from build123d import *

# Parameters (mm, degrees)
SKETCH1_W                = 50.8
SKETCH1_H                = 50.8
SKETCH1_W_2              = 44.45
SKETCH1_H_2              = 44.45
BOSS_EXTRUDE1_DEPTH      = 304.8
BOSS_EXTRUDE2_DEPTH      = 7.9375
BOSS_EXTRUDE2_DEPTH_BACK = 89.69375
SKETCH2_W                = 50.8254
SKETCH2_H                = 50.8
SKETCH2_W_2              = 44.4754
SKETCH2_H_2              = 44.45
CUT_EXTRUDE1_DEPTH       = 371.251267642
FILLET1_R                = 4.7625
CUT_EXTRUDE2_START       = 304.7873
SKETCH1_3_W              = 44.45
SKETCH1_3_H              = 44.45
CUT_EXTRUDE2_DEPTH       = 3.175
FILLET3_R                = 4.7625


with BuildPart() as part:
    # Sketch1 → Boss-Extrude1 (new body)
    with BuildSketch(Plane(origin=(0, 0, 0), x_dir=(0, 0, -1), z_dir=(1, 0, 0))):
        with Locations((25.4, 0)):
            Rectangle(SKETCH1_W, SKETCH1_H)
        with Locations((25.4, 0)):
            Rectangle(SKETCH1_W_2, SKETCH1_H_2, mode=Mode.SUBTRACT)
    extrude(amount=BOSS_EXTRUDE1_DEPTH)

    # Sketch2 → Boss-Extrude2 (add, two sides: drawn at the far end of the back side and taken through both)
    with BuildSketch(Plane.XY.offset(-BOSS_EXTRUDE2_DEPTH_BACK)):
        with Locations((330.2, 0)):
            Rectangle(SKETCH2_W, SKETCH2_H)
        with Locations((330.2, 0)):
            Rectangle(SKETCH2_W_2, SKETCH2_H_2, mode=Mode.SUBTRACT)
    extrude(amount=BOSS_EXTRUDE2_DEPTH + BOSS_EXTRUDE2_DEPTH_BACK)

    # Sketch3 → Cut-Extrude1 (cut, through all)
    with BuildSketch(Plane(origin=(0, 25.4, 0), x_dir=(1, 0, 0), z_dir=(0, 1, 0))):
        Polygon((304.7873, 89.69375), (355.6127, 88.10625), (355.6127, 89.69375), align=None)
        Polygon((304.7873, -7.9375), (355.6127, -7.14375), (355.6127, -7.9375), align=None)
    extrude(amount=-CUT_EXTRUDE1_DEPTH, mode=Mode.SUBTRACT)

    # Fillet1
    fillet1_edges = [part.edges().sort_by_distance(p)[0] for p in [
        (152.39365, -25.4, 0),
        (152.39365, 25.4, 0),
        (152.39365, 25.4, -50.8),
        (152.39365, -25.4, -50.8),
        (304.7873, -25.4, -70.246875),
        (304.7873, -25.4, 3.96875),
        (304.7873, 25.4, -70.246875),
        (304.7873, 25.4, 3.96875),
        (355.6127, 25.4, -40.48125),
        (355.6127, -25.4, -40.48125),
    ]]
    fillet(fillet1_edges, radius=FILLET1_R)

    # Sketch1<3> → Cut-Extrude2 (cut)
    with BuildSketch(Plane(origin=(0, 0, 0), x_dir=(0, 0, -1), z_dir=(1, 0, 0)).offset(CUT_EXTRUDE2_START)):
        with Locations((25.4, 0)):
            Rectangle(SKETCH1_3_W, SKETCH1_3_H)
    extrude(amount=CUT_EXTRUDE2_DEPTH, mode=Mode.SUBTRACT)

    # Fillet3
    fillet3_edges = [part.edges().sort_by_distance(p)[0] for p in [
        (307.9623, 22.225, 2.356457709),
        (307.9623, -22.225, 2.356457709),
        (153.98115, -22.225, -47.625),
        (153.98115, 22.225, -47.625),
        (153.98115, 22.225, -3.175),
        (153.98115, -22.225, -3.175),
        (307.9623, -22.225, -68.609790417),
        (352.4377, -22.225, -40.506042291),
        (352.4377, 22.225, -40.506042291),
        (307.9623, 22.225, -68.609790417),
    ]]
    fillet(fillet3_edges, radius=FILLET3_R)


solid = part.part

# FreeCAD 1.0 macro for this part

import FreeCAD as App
import Part
import Sketcher

V = App.Vector
Q = App.Units.Quantity


def edges_at(feature, points):
    """Names of the edges that pass closest to the given points."""
    edges = feature.Shape.Edges
    near = lambda p: min(range(len(edges)), key=lambda i: edges[i].distToShape(Part.Vertex(*p))[0])
    return sorted({f"Edge{near(p) + 1}" for p in points})

doc = App.newDocument("Part")
body = doc.addObject("PartDesign::Body", "Body")

# Sketch on YZ plane
sketch1 = body.newObject("Sketcher::SketchObject", "Sketch")
sketch1.AttachmentSupport = (doc.getObject("YZ_Plane"), [""])
sketch1.MapMode = "FlatFace"
sketch1.addGeometry([
    Part.LineSegment(V(25, 0, 0), V(-25, 0, 0)),  # 0
    Part.LineSegment(V(-25, 0, 0), V(-25, -51, 0)),  # 1
    Part.LineSegment(V(-25, -51, 0), V(25, -51, 0)),  # 2
    Part.LineSegment(V(25, -51, 0), V(25, 0, 0)),  # 3
    Part.LineSegment(V(-22, -48, 0), V(-22, -3, 0)),  # 4
    Part.LineSegment(V(-22, -3, 0), V(22, -3, 0)),  # 5
    Part.LineSegment(V(22, -3, 0), V(22, -48, 0)),  # 6
    Part.LineSegment(V(22, -48, 0), V(-22, -48, 0)),  # 7
], False)
sketch1.addConstraint([
    Sketcher.Constraint("Coincident", 0, 2, 1, 1),
    Sketcher.Constraint("Coincident", 1, 2, 2, 1),
    Sketcher.Constraint("Coincident", 2, 2, 3, 1),
    Sketcher.Constraint("Coincident", 3, 2, 0, 1),
    Sketcher.Constraint("Coincident", 4, 2, 5, 1),
    Sketcher.Constraint("Coincident", 5, 2, 6, 1),
    Sketcher.Constraint("Coincident", 6, 2, 7, 1),
    Sketcher.Constraint("Coincident", 7, 2, 4, 1),
    Sketcher.Constraint("Horizontal", 0),
    Sketcher.Constraint("Vertical", 1),
    Sketcher.Constraint("Horizontal", 2),
    Sketcher.Constraint("Vertical", 3),
    Sketcher.Constraint("Vertical", 4),
    Sketcher.Constraint("Horizontal", 5),
    Sketcher.Constraint("Vertical", 6),
    Sketcher.Constraint("Horizontal", 7),
    Sketcher.Constraint("Symmetric", 0, 2, 3, 2, -1, 1),
    Sketcher.Constraint("Equal", 2, 1),
    Sketcher.Constraint("Equal", 7, 4),
    Sketcher.Constraint("DistanceX", 0, 2, 0, 1, Q("2 in")),
    Sketcher.Constraint("DistanceX", 5, 1, 5, 2, Q("1.75 in")),
    Sketcher.Constraint("DistanceX", 4, 2, -1, 1, Q("0.875 in")),
    Sketcher.Constraint("DistanceY", 4, 2, -1, 1, Q("0.125 in")),
])
pad1 = body.newObject("PartDesign::Pad", "Pad")
pad1.Profile = sketch1
pad1.Length = Q("12 in")

# Sketch on XY plane
sketch2 = body.newObject("Sketcher::SketchObject", "Sketch001")
sketch2.AttachmentSupport = (doc.getObject("XY_Plane"), [""])
sketch2.MapMode = "FlatFace"
sketch2.addGeometry([
    Part.LineSegment(V(305, 25, 0), V(305, -25, 0)),  # 0
    Part.LineSegment(V(305, -25, 0), V(356, -25, 0)),  # 1
    Part.LineSegment(V(356, -25, 0), V(356, 25, 0)),  # 2
    Part.LineSegment(V(356, 25, 0), V(305, 25, 0)),  # 3
    Part.LineSegment(V(352, -22, 0), V(308, -22, 0)),  # 4
    Part.LineSegment(V(308, -22, 0), V(308, 22, 0)),  # 5
    Part.LineSegment(V(308, 22, 0), V(352, 22, 0)),  # 6
    Part.LineSegment(V(352, 22, 0), V(352, -22, 0)),  # 7
], False)
sketch2.addConstraint([
    Sketcher.Constraint("Coincident", 0, 2, 1, 1),
    Sketcher.Constraint("Coincident", 1, 2, 2, 1),
    Sketcher.Constraint("Coincident", 2, 2, 3, 1),
    Sketcher.Constraint("Coincident", 3, 2, 0, 1),
    Sketcher.Constraint("Coincident", 4, 2, 5, 1),
    Sketcher.Constraint("Coincident", 5, 2, 6, 1),
    Sketcher.Constraint("Coincident", 6, 2, 7, 1),
    Sketcher.Constraint("Coincident", 7, 2, 4, 1),
    Sketcher.Constraint("Vertical", 0),
    Sketcher.Constraint("Horizontal", 1),
    Sketcher.Constraint("Vertical", 2),
    Sketcher.Constraint("Horizontal", 3),
    Sketcher.Constraint("Horizontal", 4),
    Sketcher.Constraint("Vertical", 5),
    Sketcher.Constraint("Horizontal", 6),
    Sketcher.Constraint("Vertical", 7),
    Sketcher.Constraint("DistanceY", 0, 2, 0, 1, Q("2 in")),
    Sketcher.Constraint("DistanceY", 0, 2, -1, 1, Q("1 in")),
    Sketcher.Constraint("DistanceY", 5, 1, 5, 2, Q("1.75 in")),
    Sketcher.Constraint("DistanceX", 1, 1, 1, 2, Q("2.001 in")),
    Sketcher.Constraint("DistanceX", 4, 2, 4, 1, Q("1.751 in")),
    Sketcher.Constraint("DistanceY", 4, 2, -1, 1, Q("0.875 in")),
    Sketcher.Constraint("DistanceX", 0, 2, 4, 2, Q("0.125 in")),
    Sketcher.Constraint("DistanceX", -1, 1, 0, 2, Q("11.9995 in")),
])
pad2 = body.newObject("PartDesign::Pad", "Pad001")
pad2.Profile = sketch2
pad2.Type = "TwoLengths"
pad2.Length = Q("0.3125 in")
pad2.Length2 = Q("3.53125 in")

# Sketch on XZ plane
sketch3 = body.newObject("Sketcher::SketchObject", "Sketch002")
sketch3.AttachmentSupport = (doc.getObject("XZ_Plane"), [""])
sketch3.MapMode = "FlatFace"
sketch3.AttachmentOffset = App.Placement(V(0, 0, -1 * 25.4), App.Rotation())
sketch3.addGeometry([
    Part.LineSegment(V(304.8, -89.7, 0), V(355.6, -88.1, 0)),  # 0
    Part.LineSegment(V(355.6, -88.1, 0), V(355.6, -89.7, 0)),  # 1
    Part.LineSegment(V(355.6, -89.7, 0), V(304.8, -89.7, 0)),  # 2
    Part.LineSegment(V(355.6, 7.1, 0), V(304.8, 7.9, 0)),  # 3
    Part.LineSegment(V(304.8, 7.9, 0), V(355.6, 7.9, 0)),  # 4
    Part.LineSegment(V(355.6, 7.9, 0), V(355.6, 7.1, 0)),  # 5
], False)
sketch3.addConstraint([
    Sketcher.Constraint("Coincident", 0, 2, 1, 1),
    Sketcher.Constraint("Coincident", 1, 2, 2, 1),
    Sketcher.Constraint("Coincident", 2, 2, 0, 1),
    Sketcher.Constraint("Coincident", 3, 2, 4, 1),
    Sketcher.Constraint("Coincident", 4, 2, 5, 1),
    Sketcher.Constraint("Coincident", 5, 2, 3, 1),
    Sketcher.Constraint("Vertical", 1),
    Sketcher.Constraint("Horizontal", 2),
    Sketcher.Constraint("Horizontal", 4),
    Sketcher.Constraint("Vertical", 5),
    Sketcher.Constraint("Vertical", 2, 2, 3, 2),
    Sketcher.Constraint("Vertical", 1, 2, 4, 2),
    Sketcher.Constraint("DistanceX", 2, 2, 2, 1, Q("2.001 in")),
    Sketcher.Constraint("DistanceY", 1, 2, 1, 1, Q("0.0625 in")),
    Sketcher.Constraint("DistanceY", 5, 2, 5, 1, Q("0.03125 in")),
    Sketcher.Constraint("DistanceY", 0, 2, 5, 2, Q("3.75 in")),
    Sketcher.Constraint("DistanceY", 0, 2, -1, 1, Q("3.46875 in")),
    Sketcher.Constraint("DistanceX", -1, 1, 0, 2, Q("14.0005 in")),
])
pocket1 = body.newObject("PartDesign::Pocket", "Pocket")
pocket1.Profile = sketch3
pocket1.Type = "ThroughAll"
pocket1.Reversed = True
doc.recompute()

fillet = body.newObject("PartDesign::Fillet", "Fillet")
fillet.Base = (pocket1, edges_at(pocket1, [
    (152.394, -25.4, 0),
    (152.394, 25.4, 0),
    (152.394, 25.4, -50.8),
    (152.394, -25.4, -50.8),
    (304.787, -25.4, -70.247),
    (304.787, -25.4, 3.969),
    (304.787, 25.4, -70.247),
    (304.787, 25.4, 3.969),
    (355.613, 25.4, -40.481),
    (355.613, -25.4, -40.481),
]))
fillet.Radius = Q("0.1875 in")

# Sketch on YZ plane
sketch4 = body.newObject("Sketcher::SketchObject", "Sketch003")
sketch4.AttachmentSupport = (doc.getObject("YZ_Plane"), [""])
sketch4.MapMode = "FlatFace"
sketch4.AttachmentOffset = App.Placement(V(0, 0, 11.9995 * 25.4), App.Rotation())
sketch4.addGeometry([
    Part.LineSegment(V(22, -3, 0), V(-22, -3, 0)),
    Part.LineSegment(V(-22, -3, 0), V(-22, -48, 0)),
    Part.LineSegment(V(-22, -48, 0), V(22, -48, 0)),
    Part.LineSegment(V(22, -48, 0), V(22, -3, 0)),
], False)
sketch4.addConstraint([
    Sketcher.Constraint("Coincident", 0, 2, 1, 1),
    Sketcher.Constraint("Coincident", 1, 2, 2, 1),
    Sketcher.Constraint("Coincident", 2, 2, 3, 1),
    Sketcher.Constraint("Coincident", 3, 2, 0, 1),
    Sketcher.Constraint("Horizontal", 0),
    Sketcher.Constraint("Vertical", 1),
    Sketcher.Constraint("Horizontal", 2),
    Sketcher.Constraint("Vertical", 3),
    Sketcher.Constraint("Equal", 2, 1),
    Sketcher.Constraint("DistanceX", 0, 2, 0, 1, Q("1.75 in")),
    Sketcher.Constraint("DistanceX", 0, 2, -1, 1, Q("0.875 in")),
    Sketcher.Constraint("DistanceY", 0, 2, -1, 1, Q("0.125 in")),
])
pocket2 = body.newObject("PartDesign::Pocket", "Pocket001")
pocket2.Profile = sketch4
pocket2.Length = Q("0.125 in")
pocket2.Reversed = True
doc.recompute()

fillet2 = body.newObject("PartDesign::Fillet", "Fillet001")
fillet2.Base = (pocket2, edges_at(pocket2, [
    (307.962, 22.225, 2.356),
    (307.962, -22.225, 2.356),
    (153.981, -22.225, -47.625),
    (153.981, 22.225, -47.625),
    (153.981, 22.225, -3.175),
    (153.981, -22.225, -3.175),
    (307.962, -22.225, -68.61),
    (352.438, -22.225, -40.506),
    (352.438, 22.225, -40.506),
    (307.962, 22.225, -68.61),
]))
fillet2.Radius = Q("0.1875 in")

doc.recompute()
